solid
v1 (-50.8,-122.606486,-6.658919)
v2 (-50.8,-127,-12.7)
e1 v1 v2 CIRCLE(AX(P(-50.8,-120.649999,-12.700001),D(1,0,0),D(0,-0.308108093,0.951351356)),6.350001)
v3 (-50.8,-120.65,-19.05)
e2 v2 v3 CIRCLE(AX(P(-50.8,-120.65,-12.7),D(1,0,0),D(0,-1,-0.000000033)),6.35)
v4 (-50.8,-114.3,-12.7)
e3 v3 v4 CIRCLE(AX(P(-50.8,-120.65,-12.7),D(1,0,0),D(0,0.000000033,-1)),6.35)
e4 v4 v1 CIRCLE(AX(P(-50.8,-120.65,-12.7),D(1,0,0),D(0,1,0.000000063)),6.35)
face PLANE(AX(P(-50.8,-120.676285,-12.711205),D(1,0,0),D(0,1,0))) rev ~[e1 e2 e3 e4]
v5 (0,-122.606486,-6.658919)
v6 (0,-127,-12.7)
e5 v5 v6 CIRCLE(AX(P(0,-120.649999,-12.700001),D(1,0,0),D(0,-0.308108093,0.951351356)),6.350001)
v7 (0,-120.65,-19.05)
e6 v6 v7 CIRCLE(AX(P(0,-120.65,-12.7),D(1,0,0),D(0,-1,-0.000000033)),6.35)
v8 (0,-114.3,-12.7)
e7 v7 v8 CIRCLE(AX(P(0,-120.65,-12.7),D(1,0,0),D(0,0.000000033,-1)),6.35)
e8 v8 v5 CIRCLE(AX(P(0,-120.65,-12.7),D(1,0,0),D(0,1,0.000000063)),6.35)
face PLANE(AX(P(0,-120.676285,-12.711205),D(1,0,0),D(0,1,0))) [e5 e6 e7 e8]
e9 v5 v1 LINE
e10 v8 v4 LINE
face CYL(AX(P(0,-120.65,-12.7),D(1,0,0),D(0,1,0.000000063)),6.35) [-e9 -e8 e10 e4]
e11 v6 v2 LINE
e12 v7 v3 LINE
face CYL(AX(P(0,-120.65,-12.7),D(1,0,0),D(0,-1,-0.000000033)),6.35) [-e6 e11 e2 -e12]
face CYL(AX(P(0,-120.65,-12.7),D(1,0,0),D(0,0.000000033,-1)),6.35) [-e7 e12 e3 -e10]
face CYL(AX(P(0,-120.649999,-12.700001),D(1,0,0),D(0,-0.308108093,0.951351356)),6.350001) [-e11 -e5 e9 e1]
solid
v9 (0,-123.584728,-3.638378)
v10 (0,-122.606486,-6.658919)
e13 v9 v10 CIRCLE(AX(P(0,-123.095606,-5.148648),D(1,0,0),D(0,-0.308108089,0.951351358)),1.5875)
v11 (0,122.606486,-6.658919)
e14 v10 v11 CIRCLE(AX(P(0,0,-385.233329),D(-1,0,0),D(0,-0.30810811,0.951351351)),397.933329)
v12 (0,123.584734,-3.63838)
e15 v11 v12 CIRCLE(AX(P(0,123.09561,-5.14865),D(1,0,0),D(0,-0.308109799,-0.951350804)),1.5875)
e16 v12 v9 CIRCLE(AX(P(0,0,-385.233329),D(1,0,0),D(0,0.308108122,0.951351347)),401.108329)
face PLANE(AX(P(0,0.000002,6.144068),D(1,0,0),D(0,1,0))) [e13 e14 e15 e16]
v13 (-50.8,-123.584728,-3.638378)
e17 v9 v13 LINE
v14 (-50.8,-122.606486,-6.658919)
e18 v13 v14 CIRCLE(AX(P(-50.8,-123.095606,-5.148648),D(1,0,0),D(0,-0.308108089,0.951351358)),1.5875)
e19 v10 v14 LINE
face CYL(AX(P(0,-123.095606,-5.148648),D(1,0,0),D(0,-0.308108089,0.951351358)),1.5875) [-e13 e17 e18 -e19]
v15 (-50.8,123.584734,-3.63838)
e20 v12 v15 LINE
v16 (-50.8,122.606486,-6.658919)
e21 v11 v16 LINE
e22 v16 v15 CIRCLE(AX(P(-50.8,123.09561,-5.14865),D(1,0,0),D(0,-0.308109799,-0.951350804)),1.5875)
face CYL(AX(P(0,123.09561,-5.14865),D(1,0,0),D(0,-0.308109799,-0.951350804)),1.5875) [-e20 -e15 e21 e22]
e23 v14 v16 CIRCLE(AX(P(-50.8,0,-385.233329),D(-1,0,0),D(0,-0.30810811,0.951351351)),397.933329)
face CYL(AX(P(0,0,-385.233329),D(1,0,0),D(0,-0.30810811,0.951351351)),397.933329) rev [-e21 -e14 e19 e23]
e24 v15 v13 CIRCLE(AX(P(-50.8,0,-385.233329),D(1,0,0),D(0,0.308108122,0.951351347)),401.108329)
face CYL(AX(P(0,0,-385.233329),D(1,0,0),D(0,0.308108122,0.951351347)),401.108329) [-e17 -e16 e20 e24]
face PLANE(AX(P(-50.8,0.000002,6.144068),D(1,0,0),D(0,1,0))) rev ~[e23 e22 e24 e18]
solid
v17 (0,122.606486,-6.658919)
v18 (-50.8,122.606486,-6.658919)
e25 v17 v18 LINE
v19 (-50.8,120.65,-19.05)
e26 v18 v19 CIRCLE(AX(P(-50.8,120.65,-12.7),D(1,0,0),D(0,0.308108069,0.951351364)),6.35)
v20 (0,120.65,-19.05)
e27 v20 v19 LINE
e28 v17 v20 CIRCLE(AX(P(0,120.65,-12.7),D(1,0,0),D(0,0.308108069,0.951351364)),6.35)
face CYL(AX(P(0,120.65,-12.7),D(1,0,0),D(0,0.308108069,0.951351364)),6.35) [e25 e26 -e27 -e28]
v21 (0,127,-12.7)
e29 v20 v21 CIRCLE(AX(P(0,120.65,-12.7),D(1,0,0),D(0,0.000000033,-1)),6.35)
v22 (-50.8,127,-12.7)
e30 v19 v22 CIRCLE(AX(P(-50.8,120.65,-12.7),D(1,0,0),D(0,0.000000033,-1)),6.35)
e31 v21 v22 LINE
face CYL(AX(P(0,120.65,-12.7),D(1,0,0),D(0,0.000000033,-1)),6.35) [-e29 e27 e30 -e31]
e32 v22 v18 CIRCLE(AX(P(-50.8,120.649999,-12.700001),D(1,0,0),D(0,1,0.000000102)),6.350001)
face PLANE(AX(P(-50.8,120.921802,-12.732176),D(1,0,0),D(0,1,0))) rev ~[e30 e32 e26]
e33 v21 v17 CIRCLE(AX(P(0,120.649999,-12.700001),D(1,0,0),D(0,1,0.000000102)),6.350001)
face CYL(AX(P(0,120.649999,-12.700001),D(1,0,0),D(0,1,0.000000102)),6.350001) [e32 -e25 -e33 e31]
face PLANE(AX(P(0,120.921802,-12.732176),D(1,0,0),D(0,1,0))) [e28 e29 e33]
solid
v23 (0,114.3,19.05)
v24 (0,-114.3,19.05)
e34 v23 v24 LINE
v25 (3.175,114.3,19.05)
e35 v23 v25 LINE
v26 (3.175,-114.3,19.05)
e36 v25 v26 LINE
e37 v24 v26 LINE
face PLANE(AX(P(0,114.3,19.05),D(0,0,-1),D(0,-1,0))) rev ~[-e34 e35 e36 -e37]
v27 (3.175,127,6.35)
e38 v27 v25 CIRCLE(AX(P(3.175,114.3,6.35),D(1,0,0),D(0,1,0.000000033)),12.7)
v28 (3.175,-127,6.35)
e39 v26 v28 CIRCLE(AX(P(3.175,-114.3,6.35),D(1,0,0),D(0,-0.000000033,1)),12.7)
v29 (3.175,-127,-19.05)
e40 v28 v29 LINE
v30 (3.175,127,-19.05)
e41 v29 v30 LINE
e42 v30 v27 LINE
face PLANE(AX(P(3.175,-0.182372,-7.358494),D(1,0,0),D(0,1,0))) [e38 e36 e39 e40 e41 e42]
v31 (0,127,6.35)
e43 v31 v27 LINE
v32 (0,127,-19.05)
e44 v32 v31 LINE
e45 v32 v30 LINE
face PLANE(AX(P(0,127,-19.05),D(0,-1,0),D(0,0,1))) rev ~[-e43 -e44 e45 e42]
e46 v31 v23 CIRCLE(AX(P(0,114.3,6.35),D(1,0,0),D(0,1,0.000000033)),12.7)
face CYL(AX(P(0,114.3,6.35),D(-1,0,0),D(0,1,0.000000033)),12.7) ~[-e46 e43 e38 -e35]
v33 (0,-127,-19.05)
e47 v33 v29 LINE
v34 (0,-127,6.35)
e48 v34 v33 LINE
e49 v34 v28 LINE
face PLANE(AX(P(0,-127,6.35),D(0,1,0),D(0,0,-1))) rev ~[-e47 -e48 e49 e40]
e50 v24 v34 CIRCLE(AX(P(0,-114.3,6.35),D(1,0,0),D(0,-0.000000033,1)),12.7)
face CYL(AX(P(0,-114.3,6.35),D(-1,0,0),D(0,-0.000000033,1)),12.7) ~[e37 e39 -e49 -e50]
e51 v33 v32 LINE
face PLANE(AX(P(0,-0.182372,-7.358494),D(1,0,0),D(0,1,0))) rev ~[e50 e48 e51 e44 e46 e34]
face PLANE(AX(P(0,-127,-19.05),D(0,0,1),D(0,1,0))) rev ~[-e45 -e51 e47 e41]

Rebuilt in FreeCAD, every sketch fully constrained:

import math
import FreeCAD as App
import Part
import Sketcher
Q = App.Units.Quantity

doc = App.newDocument("Part")
params = doc.addObject("Spreadsheet::Sheet", "Params")
for row, (alias, value) in enumerate([
    ("sketch1_radius", "0.5 in"),
    ("sketch1_width", "9 in"),
    ("sketch1_height", "1 in"),
    ("pad1_length", "0.125 in"),
    ("sketch2_radius", "0.25 in"),
    ("pad2_length", "2 in"),
    ("sketch3_radius", "0.0625 in"),
    ("pad3_length", "2 in"),
], start=1):
    params.set(f"A{row}", alias)
    params.set(f"B{row}", "=" + value)
    params.setAlias(f"B{row}", alias)

body = doc.addObject("PartDesign::Body", "Body")

sketch1 = body.newObject("Sketcher::SketchObject", "Sketch")
sketch1.AttachmentSupport = (doc.getObject("YZ_Plane"), [""])
sketch1.MapMode = "FlatFace"
sketch1.addGeometry([
    Part.ArcOfCircle(Part.Circle(App.Vector(114.3, 6.35, 0), App.Vector(0, 0, 1), 12.7), math.radians(0.000002), math.radians(89.999998)),
    Part.LineSegment(App.Vector(114.3, 19.05, 0), App.Vector(-114.3, 19.05, 0)),
    Part.ArcOfCircle(Part.Circle(App.Vector(-114.3, 6.35, 0), App.Vector(0, 0, 1), 12.7), math.radians(90.000002), math.radians(179.999998)),
    Part.LineSegment(App.Vector(-127, 6.35, 0), App.Vector(-127, -19.05, 0)),
    Part.LineSegment(App.Vector(-127, -19.05, 0), App.Vector(127, -19.05, 0)),
    Part.LineSegment(App.Vector(127, -19.05, 0), App.Vector(127, 6.35, 0)),
], False)
sketch1.addConstraint([
    Sketcher.Constraint("Tangent", 0, 2, 1, 1),
    Sketcher.Constraint("Tangent", 1, 2, 2, 1),
    Sketcher.Constraint("Tangent", 2, 2, 3, 1),
    Sketcher.Constraint("Coincident", 3, 2, 4, 1),
    Sketcher.Constraint("Coincident", 4, 2, 5, 1),
    Sketcher.Constraint("Tangent", 5, 2, 0, 1),
    Sketcher.Constraint("Horizontal", 1),
    Sketcher.Constraint("Vertical", 3),
    Sketcher.Constraint("Horizontal", 4),
    Sketcher.Constraint("Vertical", 5),
    Sketcher.Constraint("Equal", 0, 2),
    Sketcher.Constraint("Radius", 0, Q("0.5 in")),
    Sketcher.Constraint("DistanceX", 1, 2, 1, 1, Q("9 in")),
    Sketcher.Constraint("DistanceY", 3, 2, 3, 1, Q("1 in")),
    Sketcher.Constraint("DistanceX", 2, 2, -1, 1, Q("5 in")),
    Sketcher.Constraint("DistanceY", -1, 1, 0, 3, Q("0.25 in")),
])
sketch1.setExpression("Constraints[11]", "Params.sketch1_radius")
sketch1.setExpression("Constraints[12]", "Params.sketch1_width")
sketch1.setExpression("Constraints[13]", "Params.sketch1_height")
pad1 = body.newObject("PartDesign::Pad", "Pad")
pad1.Profile = sketch1
pad1.setExpression("Length", "Params.pad1_length")
body2 = doc.addObject("PartDesign::Body", "Body001")
body2.AllowCompound = True

sketch2 = body2.newObject("Sketcher::SketchObject", "Sketch001")
sketch2.AttachmentSupport = (doc.getObject("YZ_Plane001"), [""])
sketch2.MapMode = "FlatFace"
sketch2.addGeometry([
    Part.ArcOfCircle(Part.Circle(App.Vector(-120.649999, -12.700001, 0), App.Vector(0, 0, 1), 6.350001), math.radians(107.945252), math.radians(179.999994)),
    Part.ArcOfCircle(Part.Circle(App.Vector(-120.65, -12.7, 0), App.Vector(0, 0, 1), 6.35), math.radians(-179.999998), math.radians(-90.000002)),
    Part.ArcOfCircle(Part.Circle(App.Vector(-120.65, -12.7, 0), App.Vector(0, 0, 1), 6.35), math.radians(-89.999998), math.radians(-0.000002)),
    Part.ArcOfCircle(Part.Circle(App.Vector(-120.65, -12.7, 0), App.Vector(0, 0, 1), 6.35), math.radians(0.000004), math.radians(107.945247)),
    Part.ArcOfCircle(Part.Circle(App.Vector(120.65, -12.7, 0), App.Vector(0, 0, 1), 6.35), math.radians(-89.999998), math.radians(-0.000002)),
    Part.ArcOfCircle(Part.Circle(App.Vector(120.649999, -12.700001, 0), App.Vector(0, 0, 1), 6.350001), math.radians(0.000006), math.radians(72.054748)),
    Part.ArcOfCircle(Part.Circle(App.Vector(120.65, -12.7, 0), App.Vector(0, 0, 1), 6.35), math.radians(72.054749), math.radians(270.000002)),
], False)
sketch2.addConstraint([
    Sketcher.Constraint("Tangent", 0, 2, 1, 1),
    Sketcher.Constraint("Tangent", 1, 2, 2, 1),
    Sketcher.Constraint("Tangent", 2, 2, 3, 1),
    Sketcher.Constraint("Tangent", 3, 2, 0, 1),
    Sketcher.Constraint("Tangent", 4, 2, 5, 1),
    Sketcher.Constraint("Tangent", 5, 2, 6, 1),
    Sketcher.Constraint("Tangent", 6, 2, 4, 1),
    Sketcher.Constraint("Equal", 0, 1),
    Sketcher.Constraint("Equal", 3, 4),
    Sketcher.Constraint("Symmetric", 0, 3, 4, 3, -2),
    Sketcher.Constraint("Horizontal", 6, 3, 0, 2),
    Sketcher.Constraint("Horizontal", 0, 2, 2, 2),
    Sketcher.Constraint("Horizontal", 2, 2, 4, 2),
    Sketcher.Constraint("Horizontal", 3, 2, 5, 2),
    Sketcher.Constraint("Vertical", 3, 3, 1, 2),
    Sketcher.Constraint("Vertical", 5, 3, 6, 2),
    Sketcher.Constraint("Radius", 0, Q("0.25 in")),
    Sketcher.Constraint("DistanceX", 0, 2, -1, 1, Q("5 in")),
    Sketcher.Constraint("DistanceY", 0, 3, -1, 1, Q("0.5 in")),
    Sketcher.Constraint("DistanceY", 3, 2, -1, 1, 6.658919),
])
sketch2.setExpression("Constraints[16]", "Params.sketch2_radius")
pad2 = body2.newObject("PartDesign::Pad", "Pad001")
pad2.Profile = sketch2
pad2.setExpression("Length", "Params.pad2_length")
pad2.Reversed = True
body3 = doc.addObject("PartDesign::Body", "Body002")

sketch3 = body3.newObject("Sketcher::SketchObject", "Sketch002")
sketch3.AttachmentSupport = (doc.getObject("YZ_Plane002"), [""])
sketch3.MapMode = "FlatFace"
sketch3.addGeometry([
    Part.ArcOfCircle(Part.Circle(App.Vector(-123.095606, -5.148648, 0), App.Vector(0, 0, 1), 1.5875), math.radians(107.945252), math.radians(287.945207)),
    Part.ArcOfCircle(Part.Circle(App.Vector(0, -385.233329, 0), App.Vector(0, 0, 1), 397.933329), math.radians(72.054747), math.radians(107.945253)),
    Part.ArcOfCircle(Part.Circle(App.Vector(123.09561, -5.14865, 0), App.Vector(0, 0, 1), 1.5875), math.radians(-107.945355), math.radians(72.054668)),
    Part.ArcOfCircle(Part.Circle(App.Vector(0, -385.233329, 0), App.Vector(0, 0, 1), 401.108329), math.radians(72.054746), math.radians(107.945253)),
], False)
sketch3.addConstraint([
    Sketcher.Constraint("Tangent", 0, 2, 1, 2),
    Sketcher.Constraint("Tangent", 1, 1, 2, 1),
    Sketcher.Constraint("Tangent", 2, 2, 3, 1),
    Sketcher.Constraint("Tangent", 3, 2, 0, 1),
    Sketcher.Constraint("Coincident", 3, 3, 1, 3),
    Sketcher.Constraint("Symmetric", 0, 3, 2, 3, -2),
    Sketcher.Constraint("Radius", 0, Q("0.0625 in")),
    Sketcher.Constraint("Radius", 1, 397.933329),
    Sketcher.Constraint("DistanceY", 0, 3, -1, 1, 5.148648),
    Sketcher.Constraint("DistanceY", 1, 3, -1, 1, 385.233329),
])
sketch3.setExpression("Constraints[6]", "Params.sketch3_radius")
pad3 = body3.newObject("PartDesign::Pad", "Pad002")
pad3.Profile = sketch3
pad3.setExpression("Length", "Params.pad3_length")
pad3.Reversed = True

doc.recompute()
